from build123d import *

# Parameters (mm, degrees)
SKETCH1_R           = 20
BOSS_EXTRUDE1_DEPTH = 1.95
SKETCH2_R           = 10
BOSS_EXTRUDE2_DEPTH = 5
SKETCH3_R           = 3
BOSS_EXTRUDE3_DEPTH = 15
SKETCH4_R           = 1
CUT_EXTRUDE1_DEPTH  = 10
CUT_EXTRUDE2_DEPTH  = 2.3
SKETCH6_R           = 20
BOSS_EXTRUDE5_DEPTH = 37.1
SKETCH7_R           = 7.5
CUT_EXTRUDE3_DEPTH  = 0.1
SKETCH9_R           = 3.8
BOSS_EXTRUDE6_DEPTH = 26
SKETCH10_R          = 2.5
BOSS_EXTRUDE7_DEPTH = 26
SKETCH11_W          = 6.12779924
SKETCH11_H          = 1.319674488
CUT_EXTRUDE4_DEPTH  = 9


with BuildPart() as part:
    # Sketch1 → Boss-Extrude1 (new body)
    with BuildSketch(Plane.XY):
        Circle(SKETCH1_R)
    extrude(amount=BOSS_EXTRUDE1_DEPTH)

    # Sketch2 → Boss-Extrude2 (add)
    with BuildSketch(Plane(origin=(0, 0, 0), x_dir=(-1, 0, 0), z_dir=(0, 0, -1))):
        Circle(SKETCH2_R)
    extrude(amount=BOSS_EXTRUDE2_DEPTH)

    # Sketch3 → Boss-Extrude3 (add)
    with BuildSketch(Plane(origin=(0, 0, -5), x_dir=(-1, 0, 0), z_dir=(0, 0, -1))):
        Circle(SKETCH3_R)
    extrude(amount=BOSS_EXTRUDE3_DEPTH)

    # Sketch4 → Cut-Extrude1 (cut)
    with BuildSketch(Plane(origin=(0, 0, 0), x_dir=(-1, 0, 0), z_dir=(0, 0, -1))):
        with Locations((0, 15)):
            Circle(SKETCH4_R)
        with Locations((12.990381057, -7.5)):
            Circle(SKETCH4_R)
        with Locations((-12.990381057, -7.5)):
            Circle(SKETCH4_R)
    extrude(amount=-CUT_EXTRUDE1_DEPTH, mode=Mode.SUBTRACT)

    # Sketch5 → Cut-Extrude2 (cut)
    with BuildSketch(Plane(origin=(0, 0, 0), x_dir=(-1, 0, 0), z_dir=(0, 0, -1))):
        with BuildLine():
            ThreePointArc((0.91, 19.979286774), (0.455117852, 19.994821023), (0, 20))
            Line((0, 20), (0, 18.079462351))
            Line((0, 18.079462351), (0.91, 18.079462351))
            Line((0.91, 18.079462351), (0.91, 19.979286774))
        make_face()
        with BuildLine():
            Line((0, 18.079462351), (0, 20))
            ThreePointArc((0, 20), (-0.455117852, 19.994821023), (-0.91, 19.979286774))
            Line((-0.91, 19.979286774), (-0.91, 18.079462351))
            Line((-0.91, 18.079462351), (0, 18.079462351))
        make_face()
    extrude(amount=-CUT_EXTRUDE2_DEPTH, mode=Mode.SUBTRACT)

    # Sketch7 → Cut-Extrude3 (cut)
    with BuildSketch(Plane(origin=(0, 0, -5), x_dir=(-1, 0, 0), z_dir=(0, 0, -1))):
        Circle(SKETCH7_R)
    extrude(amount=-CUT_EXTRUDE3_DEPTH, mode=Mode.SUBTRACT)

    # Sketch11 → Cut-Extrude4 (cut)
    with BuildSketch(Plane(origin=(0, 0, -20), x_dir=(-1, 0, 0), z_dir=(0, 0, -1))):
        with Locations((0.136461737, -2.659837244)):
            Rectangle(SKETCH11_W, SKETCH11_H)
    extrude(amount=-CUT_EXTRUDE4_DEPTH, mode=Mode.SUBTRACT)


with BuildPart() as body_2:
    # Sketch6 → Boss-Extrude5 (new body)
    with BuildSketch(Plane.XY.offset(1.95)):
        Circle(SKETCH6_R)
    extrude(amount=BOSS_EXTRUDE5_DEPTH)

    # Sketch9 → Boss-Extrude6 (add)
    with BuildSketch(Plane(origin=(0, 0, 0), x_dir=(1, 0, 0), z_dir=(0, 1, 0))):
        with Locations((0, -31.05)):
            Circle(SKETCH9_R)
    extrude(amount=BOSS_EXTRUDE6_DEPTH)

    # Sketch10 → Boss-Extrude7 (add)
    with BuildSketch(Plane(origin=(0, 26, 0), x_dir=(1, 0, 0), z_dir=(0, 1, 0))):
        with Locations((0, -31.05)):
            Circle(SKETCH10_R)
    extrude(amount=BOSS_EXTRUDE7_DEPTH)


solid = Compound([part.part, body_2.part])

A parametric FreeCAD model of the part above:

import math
import FreeCAD as App
import Part
import Sketcher

doc = App.newDocument("Part")
params = doc.addObject("Spreadsheet::Sheet", "Params")
for row, (alias, value) in enumerate([
    ("sketch1_diameter", "40 mm"),
    ("pad1_length", "1.95 mm"),
    ("sketch2_diameter", "20 mm"),
    ("pad2_length", "5 mm"),
    ("sketch3_diameter", "6 mm"),
    ("pad3_length", "15 mm"),
    ("sketch4_diameter", "2 mm"),
    ("pocket1_length", "10 mm"),
    ("sketch5_radius", "20 mm"),
    ("sketch5_width", "1.82 mm"),
    ("pocket2_length", "2.3 mm"),
    ("sketch6_diameter", "15 mm"),
    ("pocket3_length", "0.1 mm"),
    ("pocket4_length", "9 mm"),
    ("sketch8_diameter", "40 mm"),
    ("pad4_length", "37.1 mm"),
    ("sketch9_diameter", "7.6 mm"),
    ("pad5_length", "26 mm"),
    ("sketch10_diameter", "5 mm"),
    ("pad6_length", "26 mm"),
], start=1):
    params.set(f"A{row}", alias)
    params.set(f"B{row}", "=" + value)
    params.setAlias(f"B{row}", alias)

body = doc.addObject("PartDesign::Body", "Body")
body.AllowCompound = True

# Sketch on XY plane
sketch1 = body.newObject("Sketcher::SketchObject", "Sketch")
sketch1.AttachmentSupport = (doc.getObject("XY_Plane"), [""])
sketch1.MapMode = "FlatFace"
sketch1.addGeometry(Part.Circle(App.Vector(0, 0, 0), App.Vector(0, 0, 1), 20), False)
sketch1.addConstraint([
    Sketcher.Constraint("Coincident", 0, 3, -1, 1),
    Sketcher.Constraint("Diameter", 0, 40.0),
])
sketch1.setExpression("Constraints[1]", "Params.sketch1_diameter")
pad1 = body.newObject("PartDesign::Pad", "Pad")
pad1.Profile = sketch1
pad1.setExpression("Length", "Params.pad1_length")

# Sketch on XY plane
sketch2 = body.newObject("Sketcher::SketchObject", "Sketch001")
sketch2.AttachmentSupport = (doc.getObject("XY_Plane"), [""])
sketch2.MapMode = "FlatFace"
sketch2.addGeometry(Part.Circle(App.Vector(0, 0, 0), App.Vector(0, 0, 1), 10), False)
sketch2.addConstraint([
    Sketcher.Constraint("Coincident", 0, 3, -1, 1),
    Sketcher.Constraint("Diameter", 0, 20.0),
])
sketch2.setExpression("Constraints[1]", "Params.sketch2_diameter")
pad2 = body.newObject("PartDesign::Pad", "Pad001")
pad2.Profile = sketch2
pad2.setExpression("Length", "Params.pad2_length")
pad2.Reversed = True

# Sketch on XY plane
sketch3 = body.newObject("Sketcher::SketchObject", "Sketch002")
sketch3.AttachmentSupport = (doc.getObject("XY_Plane"), [""])
sketch3.MapMode = "FlatFace"
sketch3.AttachmentOffset = App.Placement(App.Vector(0, 0, -5), App.Rotation())
sketch3.addGeometry(Part.Circle(App.Vector(0, 0, 0), App.Vector(0, 0, 1), 3), False)
sketch3.addConstraint([
    Sketcher.Constraint("Coincident", 0, 3, -1, 1),
    Sketcher.Constraint("Diameter", 0, 6.0),
])
sketch3.setExpression("Constraints[1]", "Params.sketch3_diameter")
pad3 = body.newObject("PartDesign::Pad", "Pad002")
pad3.Profile = sketch3
pad3.setExpression("Length", "Params.pad3_length")
pad3.Reversed = True

# Sketch on XY plane
sketch4 = body.newObject("Sketcher::SketchObject", "Sketch003")
sketch4.AttachmentSupport = (doc.getObject("XY_Plane"), [""])
sketch4.MapMode = "FlatFace"
sketch4.addGeometry([
    Part.Circle(App.Vector(0, 15, 0), App.Vector(0, 0, 1), 1),
    Part.Circle(App.Vector(-12.990381, -7.5, 0), App.Vector(0, 0, 1), 1),
    Part.Circle(App.Vector(12.990381, -7.5, 0), App.Vector(0, 0, 1), 1),
], False)
sketch4.addConstraint([
    Sketcher.Constraint("Equal", 0, 1),
    Sketcher.Constraint("Equal", 1, 2),
    Sketcher.Constraint("Symmetric", 1, 3, 2, 3, -2),
    Sketcher.Constraint("PointOnObject", 0, 3, -2),
    Sketcher.Constraint("Diameter", 0, 2.0),
    Sketcher.Constraint("DistanceY", -1, 1, 0, 3, 15.0),
    Sketcher.Constraint("DistanceY", 1, 3, -1, 1, 7.5),
    Sketcher.Constraint("DistanceX", 1, 3, -1, 1, 12.990381),
])
sketch4.setExpression("Constraints[4]", "Params.sketch4_diameter")
pocket1 = body.newObject("PartDesign::Pocket", "Pocket")
pocket1.Profile = sketch4
pocket1.setExpression("Length", "Params.pocket1_length")
pocket1.Reversed = True

# Sketch on XY plane
sketch5 = body.newObject("Sketcher::SketchObject", "Sketch004")
sketch5.AttachmentSupport = (doc.getObject("XY_Plane"), [""])
sketch5.MapMode = "FlatFace"
sketch5.addGeometry([
    Part.ArcOfCircle(Part.Circle(App.Vector(0, 0, 0), App.Vector(0, 0, 1), 20), math.radians(90), math.radians(92.607858)),  # 0
    Part.ArcOfCircle(Part.Circle(App.Vector(0, 0, 0), App.Vector(0, 0, 1), 20), math.radians(87.392142), math.radians(90)),  # 1
    Part.LineSegment(App.Vector(0.91, 19.979287, 0), App.Vector(0.91, 18.079462, 0)),  # 2
    Part.LineSegment(App.Vector(0.91, 18.079462, 0), App.Vector(-0.91, 18.079462, 0)),  # 3
    Part.LineSegment(App.Vector(-0.91, 18.079462, 0), App.Vector(-0.91, 19.979287, 0)),  # 4
], False)
sketch5.addConstraint([
    Sketcher.Constraint("Tangent", 0, 1, 1, 2),
    Sketcher.Constraint("Coincident", 1, 1, 2, 1),
    Sketcher.Constraint("Coincident", 2, 2, 3, 1),
    Sketcher.Constraint("Coincident", 3, 2, 4, 1),
    Sketcher.Constraint("Coincident", 4, 2, 0, 2),
    Sketcher.Constraint("Vertical", 2),
    Sketcher.Constraint("Horizontal", 3),
    Sketcher.Constraint("Vertical", 4),
    Sketcher.Constraint("Coincident", 0, 3, -1, 1),
    Sketcher.Constraint("Equal", 0, 1),
    Sketcher.Constraint("PointOnObject", 0, 1, -2),
    Sketcher.Constraint("Horizontal", 1, 1, 4, 2),
    Sketcher.Constraint("Radius", 0, 20.0),
    Sketcher.Constraint("DistanceX", 3, 2, 3, 1, 1.82),
    Sketcher.Constraint("DistanceY", 2, 2, 2, 1, 1.899824),
])
sketch5.setExpression("Constraints[12]", "Params.sketch5_radius")
sketch5.setExpression("Constraints[13]", "Params.sketch5_width")
pocket2 = body.newObject("PartDesign::Pocket", "Pocket001")
pocket2.Profile = sketch5
pocket2.setExpression("Length", "Params.pocket2_length")
pocket2.Reversed = True

# Sketch on XY plane
sketch6 = body.newObject("Sketcher::SketchObject", "Sketch005")
sketch6.AttachmentSupport = (doc.getObject("XY_Plane"), [""])
sketch6.MapMode = "FlatFace"
sketch6.AttachmentOffset = App.Placement(App.Vector(0, 0, -5), App.Rotation())
sketch6.addGeometry(Part.Circle(App.Vector(0, 0, 0), App.Vector(0, 0, 1), 7.5), False)
sketch6.addConstraint([
    Sketcher.Constraint("Coincident", 0, 3, -1, 1),
    Sketcher.Constraint("Diameter", 0, 15.0),
])
sketch6.setExpression("Constraints[1]", "Params.sketch6_diameter")
pocket3 = body.newObject("PartDesign::Pocket", "Pocket002")
pocket3.Profile = sketch6
pocket3.setExpression("Length", "Params.pocket3_length")
pocket3.Reversed = True

# Sketch on XY plane
sketch7 = body.newObject("Sketcher::SketchObject", "Sketch006")
sketch7.AttachmentSupport = (doc.getObject("XY_Plane"), [""])
sketch7.MapMode = "FlatFace"
sketch7.AttachmentOffset = App.Placement(App.Vector(0, 0, -20), App.Rotation())
sketch7.addGeometry([
    Part.LineSegment(App.Vector(2.927438, -2, 0), App.Vector(2.927438, -3.319674, 0)),
    Part.LineSegment(App.Vector(2.927438, -3.319674, 0), App.Vector(-3.200361, -3.319674, 0)),
    Part.LineSegment(App.Vector(-3.200361, -3.319674, 0), App.Vector(-3.200361, -2, 0)),
    Part.LineSegment(App.Vector(-3.200361, -2, 0), App.Vector(2.927438, -2, 0)),
], False)
sketch7.addConstraint([
    Sketcher.Constraint("Coincident", 0, 2, 1, 1),
    Sketcher.Constraint("Coincident", 1, 2, 2, 1),
    Sketcher.Constraint("Coincident", 2, 2, 3, 1),
    Sketcher.Constraint("Coincident", 3, 2, 0, 1),
    Sketcher.Constraint("Vertical", 0),
    Sketcher.Constraint("Horizontal", 1),
    Sketcher.Constraint("Vertical", 2),
    Sketcher.Constraint("Horizontal", 3),
    Sketcher.Constraint("DistanceY", 2, 2, -1, 1, 2.0),
    Sketcher.Constraint("DistanceX", 1, 2, 1, 1, 6.127799),
    Sketcher.Constraint("DistanceY", 0, 2, 0, 1, 1.319674),
    Sketcher.Constraint("DistanceX", 1, 2, -1, 1, 3.200361),
])
pocket4 = body.newObject("PartDesign::Pocket", "Pocket003")
pocket4.Profile = sketch7
pocket4.setExpression("Length", "Params.pocket4_length")
pocket4.Reversed = True
body2 = doc.addObject("PartDesign::Body", "Body001")

# Sketch on XY plane
sketch8 = body2.newObject("Sketcher::SketchObject", "Sketch007")
sketch8.AttachmentSupport = (doc.getObject("XY_Plane001"), [""])
sketch8.MapMode = "FlatFace"
sketch8.AttachmentOffset = App.Placement(App.Vector(0, 0, 1.95), App.Rotation())
sketch8.addGeometry(Part.Circle(App.Vector(0, 0, 0), App.Vector(0, 0, 1), 20), False)
sketch8.addConstraint([
    Sketcher.Constraint("Coincident", 0, 3, -1, 1),
    Sketcher.Constraint("Diameter", 0, 40.0),
])
sketch8.setExpression("Constraints[1]", "Params.sketch8_diameter")
pad4 = body2.newObject("PartDesign::Pad", "Pad003")
pad4.Profile = sketch8
pad4.setExpression("Length", "Params.pad4_length")

# Sketch on XZ plane
sketch9 = body2.newObject("Sketcher::SketchObject", "Sketch008")
sketch9.AttachmentSupport = (doc.getObject("XZ_Plane001"), [""])
sketch9.MapMode = "FlatFace"
sketch9.addGeometry(Part.Circle(App.Vector(0, 31.05, 0), App.Vector(0, 0, 1), 3.8), False)
sketch9.addConstraint([
    Sketcher.Constraint("PointOnObject", 0, 3, -2),
    Sketcher.Constraint("Diameter", 0, 7.6),
    Sketcher.Constraint("DistanceY", -1, 1, 0, 3, 31.05),
])
sketch9.setExpression("Constraints[1]", "Params.sketch9_diameter")
pad5 = body2.newObject("PartDesign::Pad", "Pad004")
pad5.Profile = sketch9
pad5.setExpression("Length", "Params.pad5_length")
pad5.Reversed = True

# Sketch on XZ plane
sketch10 = body2.newObject("Sketcher::SketchObject", "Sketch009")
sketch10.AttachmentSupport = (doc.getObject("XZ_Plane001"), [""])
sketch10.MapMode = "FlatFace"
sketch10.AttachmentOffset = App.Placement(App.Vector(0, 0, -26), App.Rotation())
sketch10.addGeometry(Part.Circle(App.Vector(0, 31.05, 0), App.Vector(0, 0, 1), 2.5), False)
sketch10.addConstraint([
    Sketcher.Constraint("PointOnObject", 0, 3, -2),
    Sketcher.Constraint("Diameter", 0, 5.0),
    Sketcher.Constraint("DistanceY", -1, 1, 0, 3, 31.05),
])
sketch10.setExpression("Constraints[1]", "Params.sketch10_diameter")
pad6 = body2.newObject("PartDesign::Pad", "Pad005")
pad6.Profile = sketch10
pad6.setExpression("Length", "Params.pad6_length")
pad6.Reversed = True

doc.recompute()
